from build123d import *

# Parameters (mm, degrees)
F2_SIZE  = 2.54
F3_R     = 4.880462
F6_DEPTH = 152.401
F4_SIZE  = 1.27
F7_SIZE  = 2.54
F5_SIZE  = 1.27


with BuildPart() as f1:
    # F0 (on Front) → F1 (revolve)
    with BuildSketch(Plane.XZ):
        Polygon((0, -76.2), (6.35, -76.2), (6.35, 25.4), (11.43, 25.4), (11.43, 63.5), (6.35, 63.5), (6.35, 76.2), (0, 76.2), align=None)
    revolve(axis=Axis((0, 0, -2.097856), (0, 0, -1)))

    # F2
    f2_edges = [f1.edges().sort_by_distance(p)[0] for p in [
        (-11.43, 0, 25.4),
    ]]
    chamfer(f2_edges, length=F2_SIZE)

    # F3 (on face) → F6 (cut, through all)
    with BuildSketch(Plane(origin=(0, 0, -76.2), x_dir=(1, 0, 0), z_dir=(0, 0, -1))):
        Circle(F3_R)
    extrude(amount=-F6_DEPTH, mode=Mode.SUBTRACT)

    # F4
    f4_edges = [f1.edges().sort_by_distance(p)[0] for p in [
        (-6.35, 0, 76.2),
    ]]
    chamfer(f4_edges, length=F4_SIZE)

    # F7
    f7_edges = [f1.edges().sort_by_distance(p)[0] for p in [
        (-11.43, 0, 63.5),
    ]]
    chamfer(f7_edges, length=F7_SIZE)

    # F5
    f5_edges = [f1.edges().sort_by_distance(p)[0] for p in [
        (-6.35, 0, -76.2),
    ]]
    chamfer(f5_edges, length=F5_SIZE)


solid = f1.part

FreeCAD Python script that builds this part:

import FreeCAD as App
import Part
import Sketcher
Q = App.Units.Quantity


def edges_at(feature, points):
    """Names of the edges that pass closest to the given points."""
    edges = feature.Shape.Edges
    near = lambda p: min(range(len(edges)), key=lambda i: edges[i].distToShape(Part.Vertex(*p))[0])
    return sorted({f"Edge{near(p) + 1}" for p in points})

doc = App.newDocument("Part")
params = doc.addObject("Spreadsheet::Sheet", "Params")
for row, (alias, value) in enumerate([
    ("sketch1_height", "4 in"),
    ("sketch1_height2", "6 in"),
    ("sketch1_width", "0.2 in"),
    ("sketch1_height3", "1.5 in"),
    ("sketch1_width2", "0.25 in"),
    ("revolution_angle", "360 deg"),
    ("chamfer_size", "0.1 in"),
    ("chamfer2_size", "0.05 in"),
    ("chamfer3_size", "0.1 in"),
    ("chamfer4_size", "0.05 in"),
], start=1):
    params.set(f"A{row}", alias)
    params.set(f"B{row}", "=" + value)
    params.setAlias(f"B{row}", alias)

body = doc.addObject("PartDesign::Body", "Body")

sketch1 = body.newObject("Sketcher::SketchObject", "Sketch")
sketch1.AttachmentSupport = (doc.getObject("XZ_Plane"), [""])
sketch1.MapMode = "FlatFace"
sketch1.addGeometry([
    Part.LineSegment(App.Vector(0, -76.2, 0), App.Vector(6.35, -76.2, 0)),
    Part.LineSegment(App.Vector(6.35, -76.2, 0), App.Vector(6.35, 25.4, 0)),
    Part.LineSegment(App.Vector(6.35, 25.4, 0), App.Vector(11.43, 25.4, 0)),
    Part.LineSegment(App.Vector(11.43, 25.4, 0), App.Vector(11.43, 63.5, 0)),
    Part.LineSegment(App.Vector(11.43, 63.5, 0), App.Vector(6.35, 63.5, 0)),
    Part.LineSegment(App.Vector(6.35, 63.5, 0), App.Vector(6.35, 76.2, 0)),
    Part.LineSegment(App.Vector(6.35, 76.2, 0), App.Vector(0, 76.2, 0)),
    Part.LineSegment(App.Vector(0, 76.2, 0), App.Vector(0, -76.2, 0)),
], False)
sketch1.addConstraint([
    Sketcher.Constraint("Coincident", 0, 2, 1, 1),
    Sketcher.Constraint("Coincident", 1, 2, 2, 1),
    Sketcher.Constraint("Coincident", 2, 2, 3, 1),
    Sketcher.Constraint("Coincident", 3, 2, 4, 1),
    Sketcher.Constraint("Coincident", 4, 2, 5, 1),
    Sketcher.Constraint("Coincident", 5, 2, 6, 1),
    Sketcher.Constraint("Coincident", 6, 2, 7, 1),
    Sketcher.Constraint("Coincident", 7, 2, 0, 1),
    Sketcher.Constraint("Horizontal", 0),
    Sketcher.Constraint("Vertical", 1),
    Sketcher.Constraint("Horizontal", 2),
    Sketcher.Constraint("Vertical", 3),
    Sketcher.Constraint("Horizontal", 4),
    Sketcher.Constraint("Vertical", 5),
    Sketcher.Constraint("Horizontal", 6),
    Sketcher.Constraint("Vertical", 7),
    Sketcher.Constraint("Symmetric", 6, 2, 7, 2, -1, 1),
    Sketcher.Constraint("Vertical", 1, 2, 4, 2),
    Sketcher.Constraint("DistanceY", 1, 1, 1, 2, Q("4 in")),
    Sketcher.Constraint("DistanceY", 7, 2, 7, 1, Q("6 in")),
    Sketcher.Constraint("DistanceX", 2, 1, 2, 2, Q("0.2 in")),
    Sketcher.Constraint("DistanceY", 3, 1, 3, 2, Q("1.5 in")),
    Sketcher.Constraint("DistanceX", 0, 1, 0, 2, Q("0.25 in")),
])
sketch1.setExpression("Constraints[18]", "Params.sketch1_height")
sketch1.setExpression("Constraints[19]", "Params.sketch1_height2")
sketch1.setExpression("Constraints[20]", "Params.sketch1_width")
sketch1.setExpression("Constraints[21]", "Params.sketch1_height3")
sketch1.setExpression("Constraints[22]", "Params.sketch1_width2")
revolution = body.newObject("PartDesign::Revolution", "Revolution")
revolution.Profile = sketch1
revolution.ReferenceAxis = (sketch1, ["V_Axis"])
revolution.setExpression("Angle", "Params.revolution_angle")
doc.recompute()

chamfer = body.newObject("PartDesign::Chamfer", "Chamfer")
chamfer.Base = (revolution, edges_at(revolution, [(-11.43, 0, 25.4)]))
chamfer.setExpression("Size", "Params.chamfer_size")

sketch2 = body.newObject("Sketcher::SketchObject", "Sketch001")
sketch2.AttachmentSupport = (doc.getObject("XY_Plane"), [""])
sketch2.MapMode = "FlatFace"
sketch2.AttachmentOffset = App.Placement(App.Vector(0, 0, -3 * 25.4), App.Rotation())
sketch2.addGeometry(Part.Circle(App.Vector(0, 0, 0), App.Vector(0, 0, 1), 4.880462), False)
sketch2.addConstraint([
    Sketcher.Constraint("Coincident", 0, 3, -1, 1),
    Sketcher.Constraint("Diameter", 0, Q("9.760924 mm")),
])
pocket1 = body.newObject("PartDesign::Pocket", "Pocket")
pocket1.Profile = sketch2
pocket1.Type = "ThroughAll"
pocket1.Reversed = True
doc.recompute()

chamfer2 = body.newObject("PartDesign::Chamfer", "Chamfer001")
chamfer2.Base = (pocket1, edges_at(pocket1, [(-6.35, 0, 76.2)]))
chamfer2.setExpression("Size", "Params.chamfer2_size")
doc.recompute()

chamfer3 = body.newObject("PartDesign::Chamfer", "Chamfer002")
chamfer3.Base = (chamfer2, edges_at(chamfer2, [(-11.43, 0, 63.5)]))
chamfer3.setExpression("Size", "Params.chamfer3_size")
doc.recompute()

chamfer4 = body.newObject("PartDesign::Chamfer", "Chamfer003")
chamfer4.Base = (chamfer3, edges_at(chamfer3, [(-6.35, 0, -76.2)]))
chamfer4.setExpression("Size", "Params.chamfer4_size")

doc.recompute()
